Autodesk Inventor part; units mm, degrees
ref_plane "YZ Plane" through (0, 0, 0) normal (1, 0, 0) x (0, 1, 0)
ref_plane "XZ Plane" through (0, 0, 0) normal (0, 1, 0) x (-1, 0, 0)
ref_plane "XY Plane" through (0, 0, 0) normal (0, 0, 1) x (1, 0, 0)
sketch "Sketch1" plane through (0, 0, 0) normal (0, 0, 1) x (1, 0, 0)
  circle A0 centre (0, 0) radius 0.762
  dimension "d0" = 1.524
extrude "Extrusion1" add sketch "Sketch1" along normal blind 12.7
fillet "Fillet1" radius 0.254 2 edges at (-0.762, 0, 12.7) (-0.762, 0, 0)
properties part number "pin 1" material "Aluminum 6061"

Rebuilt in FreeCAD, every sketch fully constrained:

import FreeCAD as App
import Part
import Sketcher
Q = App.Units.Quantity


def edges_at(feature, points):
    """Names of the edges that pass closest to the given points."""
    edges = feature.Shape.Edges
    near = lambda p: min(range(len(edges)), key=lambda i: edges[i].distToShape(Part.Vertex(*p))[0])
    return sorted({f"Edge{near(p) + 1}" for p in points})

doc = App.newDocument("Part")
body = doc.addObject("PartDesign::Body", "Body")

# Sketch on XY plane
sketch1 = body.newObject("Sketcher::SketchObject", "Sketch")
sketch1.AttachmentSupport = (doc.getObject("XY_Plane"), [""])
sketch1.MapMode = "FlatFace"
sketch1.addGeometry(Part.Circle(App.Vector(0, 0, 0), App.Vector(0, 0, 1), 0.8), False)
sketch1.addConstraint([
    Sketcher.Constraint("Coincident", 0, 3, -1, 1),
    Sketcher.Constraint("Diameter", 0, Q("0.06 in")),
])
pad1 = body.newObject("PartDesign::Pad", "Pad")
pad1.Profile = sketch1
pad1.Length = Q("0.5 in")
doc.recompute()

fillet = body.newObject("PartDesign::Fillet", "Fillet")
fillet.Base = (pad1, edges_at(pad1, [(-0.762, 0, 12.7), (-0.762, 0, 0)]))
fillet.Radius = Q("0.01 in")

doc.recompute()
